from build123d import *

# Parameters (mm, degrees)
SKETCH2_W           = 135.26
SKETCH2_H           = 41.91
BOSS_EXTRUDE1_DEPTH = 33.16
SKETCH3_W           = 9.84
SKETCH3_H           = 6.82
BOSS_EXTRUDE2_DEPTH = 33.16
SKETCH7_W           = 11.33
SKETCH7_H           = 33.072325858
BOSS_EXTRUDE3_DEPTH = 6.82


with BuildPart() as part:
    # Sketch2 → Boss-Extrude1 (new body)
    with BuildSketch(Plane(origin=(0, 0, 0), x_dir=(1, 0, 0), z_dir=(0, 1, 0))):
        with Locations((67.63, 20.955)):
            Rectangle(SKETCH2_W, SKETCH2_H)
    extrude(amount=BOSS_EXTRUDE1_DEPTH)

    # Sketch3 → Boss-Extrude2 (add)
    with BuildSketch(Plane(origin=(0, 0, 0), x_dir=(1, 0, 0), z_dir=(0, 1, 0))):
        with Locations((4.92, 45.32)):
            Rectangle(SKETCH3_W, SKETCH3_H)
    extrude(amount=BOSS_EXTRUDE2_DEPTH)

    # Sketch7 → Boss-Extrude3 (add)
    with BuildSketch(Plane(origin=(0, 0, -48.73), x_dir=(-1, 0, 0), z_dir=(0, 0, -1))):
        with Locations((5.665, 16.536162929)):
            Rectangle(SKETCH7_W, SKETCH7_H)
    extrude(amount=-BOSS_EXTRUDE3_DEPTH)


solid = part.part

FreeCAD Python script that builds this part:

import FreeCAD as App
import Part
import Sketcher

V = App.Vector
Q = App.Units.Quantity


def add_polygon(sketch, points):
    """Adds a closed chain of lines whose ends are joined by coincident constraints."""
    first, n = sketch.GeometryCount, len(points)
    for a, b in zip(points, points[1:] + points[:1]):
        sketch.addGeometry(Part.LineSegment(App.Vector(*a, 0), App.Vector(*b, 0)), False)
    for i in range(n):
        sketch.addConstraint(Sketcher.Constraint("Coincident", first + i, 2, first + (i + 1) % n, 1))

doc = App.newDocument("Part")
params = doc.addObject("Spreadsheet::Sheet", "Params")
for row, (alias, value) in enumerate([
    ("sketch1_height", "1.65 in"),
    ("pad1_length", "33.16 mm"),
    ("pad2_length", "33.16 mm"),
    ("pad3_length", "6.82 mm"),
], start=1):
    params.set(f"A{row}", alias)
    params.set(f"B{row}", "=" + value)
    params.setAlias(f"B{row}", alias)

body = doc.addObject("PartDesign::Body", "Body")

sketch1 = doc.addObject("Sketcher::SketchObject", "Sketch")
body.addObject(sketch1)
sketch1.AttachmentSupport = (doc.XZ_Plane, [""])
sketch1.MapMode = "FlatFace"
add_polygon(sketch1, [(0, -42), (0, 0), (135, 0), (135, -42)])
sketch1.addConstraint([
    Sketcher.Constraint("Vertical", 0),
    Sketcher.Constraint("Horizontal", 1),
    Sketcher.Constraint("Vertical", 2),
    Sketcher.Constraint("Horizontal", 3),
    Sketcher.Constraint("Coincident", 0, 2, -1, 1),
    Sketcher.Constraint("DistanceY", 0, 1, 0, 2, Q("1.65 in")),
    Sketcher.Constraint("DistanceX", 1, 1, 1, 2, Q("135.26 mm")),
])
sketch1.setExpression("Constraints[9]", "Params.sketch1_height")
pad1 = doc.addObject("PartDesign::Pad", "Pad")
body.addObject(pad1)
pad1.Profile = sketch1
pad1.setExpression("Length", "Params.pad1_length")
pad1.Reversed = True

sketch2 = doc.addObject("Sketcher::SketchObject", "Sketch001")
body.addObject(sketch2)
sketch2.AttachmentSupport = (doc.XZ_Plane, [""])
sketch2.MapMode = "FlatFace"
add_polygon(sketch2, [(0, -49), (0, -42), (10, -42), (10, -49)])
sketch2.addConstraint([
    Sketcher.Constraint("Vertical", 0),
    Sketcher.Constraint("Horizontal", 1),
    Sketcher.Constraint("Vertical", 2),
    Sketcher.Constraint("Horizontal", 3),
    Sketcher.Constraint("PointOnObject", 0, 2, -2),
    Sketcher.Constraint("DistanceY", 0, 2, -1, 1, Q("1.65 in")),
    Sketcher.Constraint("DistanceX", 1, 1, 1, 2, Q("9.84 mm")),
    Sketcher.Constraint("DistanceY", 0, 1, 0, 2, Q("6.82 mm")),
])
pad2 = doc.addObject("PartDesign::Pad", "Pad001")
body.addObject(pad2)
pad2.Profile = sketch2
pad2.setExpression("Length", "Params.pad2_length")
pad2.Reversed = True

sketch3 = doc.addObject("Sketcher::SketchObject", "Sketch002")
body.addObject(sketch3)
sketch3.AttachmentSupport = (doc.XY_Plane, [""])
sketch3.MapMode = "FlatFace"
sketch3.AttachmentOffset = App.Placement(V(0, 0, -48.73), App.Rotation())
add_polygon(sketch3, [(0, 33), (0, 0), (-11, 0), (-11, 33)])
sketch3.addConstraint([
    Sketcher.Constraint("Vertical", 0),
    Sketcher.Constraint("Horizontal", 1),
    Sketcher.Constraint("Vertical", 2),
    Sketcher.Constraint("Horizontal", 3),
    Sketcher.Constraint("Coincident", 0, 2, -1, 1),
    Sketcher.Constraint("DistanceX", 1, 2, 1, 1, Q("11.33 mm")),
    Sketcher.Constraint("DistanceY", 0, 2, 0, 1, Q("33.072326 mm")),
])
pad3 = doc.addObject("PartDesign::Pad", "Pad002")
body.addObject(pad3)
pad3.Profile = sketch3
pad3.setExpression("Length", "Params.pad3_length")

doc.recompute()
